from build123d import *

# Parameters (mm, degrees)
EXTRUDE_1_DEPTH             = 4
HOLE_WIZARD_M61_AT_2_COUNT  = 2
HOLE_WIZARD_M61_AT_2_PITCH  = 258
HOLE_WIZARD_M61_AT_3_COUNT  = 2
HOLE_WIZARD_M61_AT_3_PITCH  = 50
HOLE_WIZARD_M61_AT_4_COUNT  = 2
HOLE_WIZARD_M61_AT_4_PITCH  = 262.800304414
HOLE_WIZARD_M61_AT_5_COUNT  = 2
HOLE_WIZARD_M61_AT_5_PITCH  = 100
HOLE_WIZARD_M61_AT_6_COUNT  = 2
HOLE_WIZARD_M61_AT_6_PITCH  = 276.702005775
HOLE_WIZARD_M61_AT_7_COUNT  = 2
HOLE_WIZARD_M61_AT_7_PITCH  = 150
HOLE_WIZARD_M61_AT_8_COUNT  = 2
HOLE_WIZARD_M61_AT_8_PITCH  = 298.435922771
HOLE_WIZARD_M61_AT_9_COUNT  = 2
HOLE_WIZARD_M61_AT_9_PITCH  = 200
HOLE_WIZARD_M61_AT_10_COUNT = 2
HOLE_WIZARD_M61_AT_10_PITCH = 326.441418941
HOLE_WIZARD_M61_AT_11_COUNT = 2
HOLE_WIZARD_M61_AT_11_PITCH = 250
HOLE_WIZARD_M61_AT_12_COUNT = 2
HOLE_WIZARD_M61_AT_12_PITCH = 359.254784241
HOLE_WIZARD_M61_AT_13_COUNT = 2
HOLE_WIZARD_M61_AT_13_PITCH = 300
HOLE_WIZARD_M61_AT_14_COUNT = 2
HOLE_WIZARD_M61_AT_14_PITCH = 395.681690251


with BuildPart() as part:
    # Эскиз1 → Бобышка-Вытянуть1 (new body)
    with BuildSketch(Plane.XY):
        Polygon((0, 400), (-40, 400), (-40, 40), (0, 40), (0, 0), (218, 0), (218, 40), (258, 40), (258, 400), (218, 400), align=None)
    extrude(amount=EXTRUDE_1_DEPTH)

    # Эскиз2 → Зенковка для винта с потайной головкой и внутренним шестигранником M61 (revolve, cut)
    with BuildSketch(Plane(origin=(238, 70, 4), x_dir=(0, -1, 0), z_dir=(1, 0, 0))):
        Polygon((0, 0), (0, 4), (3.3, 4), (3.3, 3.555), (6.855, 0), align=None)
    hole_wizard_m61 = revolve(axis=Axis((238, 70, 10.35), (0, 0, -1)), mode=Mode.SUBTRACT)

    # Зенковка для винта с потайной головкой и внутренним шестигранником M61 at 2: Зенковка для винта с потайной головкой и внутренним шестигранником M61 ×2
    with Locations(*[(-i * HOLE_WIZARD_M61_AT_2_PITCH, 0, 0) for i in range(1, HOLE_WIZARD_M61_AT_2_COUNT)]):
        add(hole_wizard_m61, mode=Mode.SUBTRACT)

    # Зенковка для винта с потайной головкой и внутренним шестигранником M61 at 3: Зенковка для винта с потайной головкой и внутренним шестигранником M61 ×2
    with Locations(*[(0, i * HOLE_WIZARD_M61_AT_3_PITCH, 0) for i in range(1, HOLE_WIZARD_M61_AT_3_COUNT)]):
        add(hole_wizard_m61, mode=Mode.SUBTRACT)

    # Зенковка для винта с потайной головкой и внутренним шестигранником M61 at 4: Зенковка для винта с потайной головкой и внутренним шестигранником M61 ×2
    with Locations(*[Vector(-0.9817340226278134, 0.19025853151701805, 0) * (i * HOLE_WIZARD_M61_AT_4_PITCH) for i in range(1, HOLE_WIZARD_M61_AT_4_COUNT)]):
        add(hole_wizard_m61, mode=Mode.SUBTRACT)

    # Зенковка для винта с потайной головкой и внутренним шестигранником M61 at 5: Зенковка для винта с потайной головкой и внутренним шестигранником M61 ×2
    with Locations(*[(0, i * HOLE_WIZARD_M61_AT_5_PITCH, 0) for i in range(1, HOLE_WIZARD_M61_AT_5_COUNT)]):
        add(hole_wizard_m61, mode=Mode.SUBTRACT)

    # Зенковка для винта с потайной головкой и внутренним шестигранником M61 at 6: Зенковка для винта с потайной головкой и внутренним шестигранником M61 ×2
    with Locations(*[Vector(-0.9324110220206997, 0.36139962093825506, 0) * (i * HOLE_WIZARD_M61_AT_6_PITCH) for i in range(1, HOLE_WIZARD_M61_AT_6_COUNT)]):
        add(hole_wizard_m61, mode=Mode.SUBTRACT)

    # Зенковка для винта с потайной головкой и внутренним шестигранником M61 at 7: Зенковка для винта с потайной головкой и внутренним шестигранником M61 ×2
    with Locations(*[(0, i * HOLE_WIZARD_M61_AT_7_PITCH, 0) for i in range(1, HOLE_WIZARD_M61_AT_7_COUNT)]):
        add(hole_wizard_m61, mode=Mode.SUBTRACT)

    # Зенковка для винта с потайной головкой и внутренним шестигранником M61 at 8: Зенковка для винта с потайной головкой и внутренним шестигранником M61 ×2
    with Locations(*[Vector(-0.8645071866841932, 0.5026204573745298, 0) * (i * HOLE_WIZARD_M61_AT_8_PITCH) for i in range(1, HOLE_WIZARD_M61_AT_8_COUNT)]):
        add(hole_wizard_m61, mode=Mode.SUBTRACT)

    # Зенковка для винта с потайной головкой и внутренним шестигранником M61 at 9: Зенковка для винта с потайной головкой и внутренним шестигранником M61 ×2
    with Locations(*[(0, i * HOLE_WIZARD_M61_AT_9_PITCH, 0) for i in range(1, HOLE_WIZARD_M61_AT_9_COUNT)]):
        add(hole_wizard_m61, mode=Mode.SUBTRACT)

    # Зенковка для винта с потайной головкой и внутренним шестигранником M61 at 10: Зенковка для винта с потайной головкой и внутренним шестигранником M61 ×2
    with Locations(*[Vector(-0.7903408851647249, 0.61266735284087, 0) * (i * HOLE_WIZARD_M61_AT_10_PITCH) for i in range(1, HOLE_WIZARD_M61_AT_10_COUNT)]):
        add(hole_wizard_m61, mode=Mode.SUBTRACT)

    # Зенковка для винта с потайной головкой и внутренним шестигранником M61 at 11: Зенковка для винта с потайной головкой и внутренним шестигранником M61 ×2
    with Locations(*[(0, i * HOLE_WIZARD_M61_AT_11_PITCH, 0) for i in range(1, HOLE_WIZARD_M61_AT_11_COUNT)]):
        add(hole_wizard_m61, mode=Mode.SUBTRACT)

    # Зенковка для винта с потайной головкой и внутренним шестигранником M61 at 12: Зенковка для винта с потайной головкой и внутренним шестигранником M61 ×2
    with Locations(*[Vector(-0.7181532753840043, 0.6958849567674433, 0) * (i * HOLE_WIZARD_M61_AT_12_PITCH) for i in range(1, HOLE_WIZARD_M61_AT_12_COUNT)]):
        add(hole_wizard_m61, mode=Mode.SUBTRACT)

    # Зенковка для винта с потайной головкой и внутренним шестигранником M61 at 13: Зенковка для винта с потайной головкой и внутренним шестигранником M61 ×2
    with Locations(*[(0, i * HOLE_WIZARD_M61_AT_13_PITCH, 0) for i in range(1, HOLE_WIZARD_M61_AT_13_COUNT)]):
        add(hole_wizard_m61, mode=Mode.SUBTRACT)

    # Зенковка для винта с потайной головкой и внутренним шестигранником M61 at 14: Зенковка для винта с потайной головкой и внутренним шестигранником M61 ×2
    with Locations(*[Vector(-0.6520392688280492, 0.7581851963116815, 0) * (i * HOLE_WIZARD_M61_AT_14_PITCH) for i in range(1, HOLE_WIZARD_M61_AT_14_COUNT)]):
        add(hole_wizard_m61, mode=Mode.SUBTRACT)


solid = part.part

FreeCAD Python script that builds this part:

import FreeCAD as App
import Part
import Sketcher

V = App.Vector
Q = App.Units.Quantity

doc = App.newDocument("Part")
params = doc.addObject("Spreadsheet::Sheet", "Params")
for row, (alias, value) in enumerate([
    ("sketch1_width", "40 mm"),
    ("sketch1_width2", "218 mm"),
    ("sketch1_height", "360 mm"),
    ("pad1_length", "4 mm"),
    ("sketch2_height", "4 mm"),
    ("sketch2_width", "3.3 mm"),
    ("groove_angle", "360 deg"),
    ("linearpattern_pitch", "258 mm"),
    ("linearpattern2_pitch", "50 mm"),
    ("linearpattern3_pitch", "262.800304 mm"),
    ("linearpattern4_pitch", "100 mm"),
    ("linearpattern5_pitch", "276.702006 mm"),
    ("linearpattern6_pitch", "150 mm"),
    ("linearpattern7_pitch", "298.435923 mm"),
    ("linearpattern8_pitch", "200 mm"),
    ("linearpattern9_pitch", "326.441419 mm"),
    ("linearpattern10_pitch", "250 mm"),
    ("linearpattern11_pitch", "359.254784 mm"),
    ("linearpattern12_pitch", "300 mm"),
    ("linearpattern13_pitch", "395.68169 mm"),
], start=1):
    params.set(f"A{row}", alias)
    params.set(f"B{row}", "=" + value)
    params.setAlias(f"B{row}", alias)

body = doc.addObject("PartDesign::Body", "Body")

sketch1 = body.newObject("Sketcher::SketchObject", "Sketch")
sketch1.AttachmentSupport = (doc.getObject("XY_Plane"), [""])
sketch1.MapMode = "FlatFace"
sketch1.addGeometry(Part.LineSegment(V(-40, 400, 0), V(-40, 40, 0)), False)
sketch1.addGeometry(Part.LineSegment(V(-40, 40, 0), V(0, 40, 0)), False)
sketch1.addGeometry(Part.LineSegment(V(0, 40, 0), V(0, 0, 0)), False)
sketch1.addGeometry(Part.LineSegment(V(0, 0, 0), V(218, 0, 0)), False)
sketch1.addGeometry(Part.LineSegment(V(218, 0, 0), V(218, 40, 0)), False)
sketch1.addGeometry(Part.LineSegment(V(218, 40, 0), V(258, 40, 0)), False)
sketch1.addGeometry(Part.LineSegment(V(258, 40, 0), V(258, 400, 0)), False)
sketch1.addGeometry(Part.LineSegment(V(258, 400, 0), V(-40, 400, 0)), False)
sketch1.addConstraint(Sketcher.Constraint("Coincident", 0, 2, 1, 1))
sketch1.addConstraint(Sketcher.Constraint("Coincident", 1, 2, 2, 1))
sketch1.addConstraint(Sketcher.Constraint("Coincident", 2, 2, 3, 1))
sketch1.addConstraint(Sketcher.Constraint("Coincident", 3, 2, 4, 1))
sketch1.addConstraint(Sketcher.Constraint("Coincident", 4, 2, 5, 1))
sketch1.addConstraint(Sketcher.Constraint("Coincident", 5, 2, 6, 1))
sketch1.addConstraint(Sketcher.Constraint("Coincident", 6, 2, 7, 1))
sketch1.addConstraint(Sketcher.Constraint("Coincident", 7, 2, 0, 1))
sketch1.addConstraint(Sketcher.Constraint("Vertical", 0))
sketch1.addConstraint(Sketcher.Constraint("Horizontal", 1))
sketch1.addConstraint(Sketcher.Constraint("Vertical", 2))
sketch1.addConstraint(Sketcher.Constraint("Horizontal", 3))
sketch1.addConstraint(Sketcher.Constraint("Vertical", 4))
sketch1.addConstraint(Sketcher.Constraint("Horizontal", 5))
sketch1.addConstraint(Sketcher.Constraint("Vertical", 6))
sketch1.addConstraint(Sketcher.Constraint("Horizontal", 7))
sketch1.addConstraint(Sketcher.Constraint("Coincident", 2, 2, -1, 1))
sketch1.addConstraint(Sketcher.Constraint("Horizontal", 1, 2, 4, 2))
sketch1.addConstraint(Sketcher.Constraint("Equal", 1, 5))
sketch1.addConstraint(Sketcher.Constraint("Equal", 5, 2))
sketch1.addConstraint(Sketcher.Constraint("DistanceX", 1, 1, 1, 2, 40.0))
sketch1.addConstraint(Sketcher.Constraint("DistanceX", 3, 1, 3, 2, 218.0))
sketch1.addConstraint(Sketcher.Constraint("DistanceY", 0, 2, 0, 1, 360.0))
sketch1.setExpression("Constraints[20]", "Params.sketch1_width")
sketch1.setExpression("Constraints[21]", "Params.sketch1_width2")
sketch1.setExpression("Constraints[22]", "Params.sketch1_height")
pad1 = body.newObject("PartDesign::Pad", "Pad")
pad1.Profile = sketch1
pad1.setExpression("Length", "Params.pad1_length")

sketch2 = body.newObject("Sketcher::SketchObject", "Sketch001")
sketch2.AttachmentSupport = (doc.getObject("YZ_Plane"), [""])
sketch2.MapMode = "FlatFace"
sketch2.AttachmentOffset = App.Placement(V(0, 0, 238), App.Rotation())
sketch2.addGeometry(Part.LineSegment(V(70, 0, 0), V(70, 4, 0)), False)
sketch2.addGeometry(Part.LineSegment(V(70, 4, 0), V(63.145, 4, 0)), False)
sketch2.addGeometry(Part.LineSegment(V(63.145, 4, 0), V(66.7, 0.445, 0)), False)
sketch2.addGeometry(Part.LineSegment(V(66.7, 0.445, 0), V(66.7, 0, 0)), False)
sketch2.addGeometry(Part.LineSegment(V(66.7, 0, 0), V(70, 0, 0)), False)
sketch2.addGeometry(Part.LineSegment(V(70, 4, 0), V(70, 0, 0)), True)
sketch2.addConstraint(Sketcher.Constraint("Coincident", 0, 2, 1, 1))
sketch2.addConstraint(Sketcher.Constraint("Coincident", 1, 2, 2, 1))
sketch2.addConstraint(Sketcher.Constraint("Coincident", 2, 2, 3, 1))
sketch2.addConstraint(Sketcher.Constraint("Coincident", 3, 2, 4, 1))
sketch2.addConstraint(Sketcher.Constraint("Coincident", 4, 2, 0, 1))
sketch2.addConstraint(Sketcher.Constraint("Vertical", 0))
sketch2.addConstraint(Sketcher.Constraint("Horizontal", 1))
sketch2.addConstraint(Sketcher.Constraint("Vertical", 3))
sketch2.addConstraint(Sketcher.Constraint("Horizontal", 4))
sketch2.addConstraint(Sketcher.Constraint("Vertical", 5))
sketch2.addConstraint(Sketcher.Constraint("Coincident", 5, 1, 0, 2))
sketch2.addConstraint(Sketcher.Constraint("PointOnObject", 3, 2, -1))
sketch2.addConstraint(Sketcher.Constraint("PointOnObject", 5, 2, -1))
sketch2.addConstraint(Sketcher.Constraint("DistanceY", 0, 1, 0, 2, 4.0))
sketch2.addConstraint(Sketcher.Constraint("Angle", 2, Q("-45 deg")))
sketch2.addConstraint(Sketcher.Constraint("DistanceX", 4, 1, 4, 2, 3.3))
sketch2.addConstraint(Sketcher.Constraint("DistanceX", -1, 1, 0, 2, 70.0))
sketch2.addConstraint(Sketcher.Constraint("DistanceX", 1, 2, 1, 1, 6.855))
sketch2.setExpression("Constraints[13]", "Params.sketch2_height")
sketch2.setExpression("Constraints[15]", "Params.sketch2_width")
groove = body.newObject("PartDesign::Groove", "Groove")
groove.Profile = sketch2
groove.ReferenceAxis = (sketch2, ["Axis0"])
groove.setExpression("Angle", "Params.groove_angle")
doc.recompute()

linearpattern = body.newObject("PartDesign::LinearPattern", "LinearPattern")
linearpattern.Originals = [groove]
linearpattern.Direction = (doc.getObject("X_Axis"), [""])
linearpattern.Mode = "offset"
linearpattern.setExpression("Offset", "Params.linearpattern_pitch")
linearpattern.Occurrences = 2
linearpattern.Reversed = True
body.Tip = linearpattern
doc.recompute()

linearpattern2 = body.newObject("PartDesign::LinearPattern", "LinearPattern001")
linearpattern2.Originals = [groove]
linearpattern2.Direction = (doc.getObject("Y_Axis"), [""])
linearpattern2.Mode = "offset"
linearpattern2.setExpression("Offset", "Params.linearpattern2_pitch")
linearpattern2.Occurrences = 2
body.Tip = linearpattern2
doc.recompute()

datumline = body.newObject("PartDesign::Line", "DatumLine")
datumline.Placement = App.Placement(V(0, 0, 0), App.Rotation(V(0, 0, 1), V(-0.981734023, 0.190258532, 0)))
linearpattern3 = body.newObject("PartDesign::LinearPattern", "LinearPattern002")
linearpattern3.Originals = [groove]
linearpattern3.Direction = (datumline, [""])
linearpattern3.Mode = "offset"
linearpattern3.setExpression("Offset", "Params.linearpattern3_pitch")
linearpattern3.Occurrences = 2
body.Tip = linearpattern3
doc.recompute()

linearpattern4 = body.newObject("PartDesign::LinearPattern", "LinearPattern003")
linearpattern4.Originals = [groove]
linearpattern4.Direction = (doc.getObject("Y_Axis"), [""])
linearpattern4.Mode = "offset"
linearpattern4.setExpression("Offset", "Params.linearpattern4_pitch")
linearpattern4.Occurrences = 2
body.Tip = linearpattern4
doc.recompute()

datumline2 = body.newObject("PartDesign::Line", "DatumLine001")
datumline2.Placement = App.Placement(V(0, 0, 0), App.Rotation(V(0, 0, 1), V(-0.932411022, 0.361399621, 0)))
linearpattern5 = body.newObject("PartDesign::LinearPattern", "LinearPattern004")
linearpattern5.Originals = [groove]
linearpattern5.Direction = (datumline2, [""])
linearpattern5.Mode = "offset"
linearpattern5.setExpression("Offset", "Params.linearpattern5_pitch")
linearpattern5.Occurrences = 2
body.Tip = linearpattern5
doc.recompute()

linearpattern6 = body.newObject("PartDesign::LinearPattern", "LinearPattern005")
linearpattern6.Originals = [groove]
linearpattern6.Direction = (doc.getObject("Y_Axis"), [""])
linearpattern6.Mode = "offset"
linearpattern6.setExpression("Offset", "Params.linearpattern6_pitch")
linearpattern6.Occurrences = 2
body.Tip = linearpattern6
doc.recompute()

datumline3 = body.newObject("PartDesign::Line", "DatumLine002")
datumline3.Placement = App.Placement(V(0, 0, 0), App.Rotation(V(0, 0, 1), V(-0.864507187, 0.502620457, 0)))
linearpattern7 = body.newObject("PartDesign::LinearPattern", "LinearPattern006")
linearpattern7.Originals = [groove]
linearpattern7.Direction = (datumline3, [""])
linearpattern7.Mode = "offset"
linearpattern7.setExpression("Offset", "Params.linearpattern7_pitch")
linearpattern7.Occurrences = 2
body.Tip = linearpattern7
doc.recompute()

linearpattern8 = body.newObject("PartDesign::LinearPattern", "LinearPattern007")
linearpattern8.Originals = [groove]
linearpattern8.Direction = (doc.getObject("Y_Axis"), [""])
linearpattern8.Mode = "offset"
linearpattern8.setExpression("Offset", "Params.linearpattern8_pitch")
linearpattern8.Occurrences = 2
body.Tip = linearpattern8
doc.recompute()

datumline4 = body.newObject("PartDesign::Line", "DatumLine003")
datumline4.Placement = App.Placement(V(0, 0, 0), App.Rotation(V(0, 0, 1), V(-0.790340885, 0.612667353, 0)))
linearpattern9 = body.newObject("PartDesign::LinearPattern", "LinearPattern008")
linearpattern9.Originals = [groove]
linearpattern9.Direction = (datumline4, [""])
linearpattern9.Mode = "offset"
linearpattern9.setExpression("Offset", "Params.linearpattern9_pitch")
linearpattern9.Occurrences = 2
body.Tip = linearpattern9
doc.recompute()

linearpattern10 = body.newObject("PartDesign::LinearPattern", "LinearPattern009")
linearpattern10.Originals = [groove]
linearpattern10.Direction = (doc.getObject("Y_Axis"), [""])
linearpattern10.Mode = "offset"
linearpattern10.setExpression("Offset", "Params.linearpattern10_pitch")
linearpattern10.Occurrences = 2
body.Tip = linearpattern10
doc.recompute()

datumline5 = body.newObject("PartDesign::Line", "DatumLine004")
datumline5.Placement = App.Placement(V(0, 0, 0), App.Rotation(V(0, 0, 1), V(-0.718153275, 0.695884957, 0)))
linearpattern11 = body.newObject("PartDesign::LinearPattern", "LinearPattern010")
linearpattern11.Originals = [groove]
linearpattern11.Direction = (datumline5, [""])
linearpattern11.Mode = "offset"
linearpattern11.setExpression("Offset", "Params.linearpattern11_pitch")
linearpattern11.Occurrences = 2
body.Tip = linearpattern11
doc.recompute()

linearpattern12 = body.newObject("PartDesign::LinearPattern", "LinearPattern011")
linearpattern12.Originals = [groove]
linearpattern12.Direction = (doc.getObject("Y_Axis"), [""])
linearpattern12.Mode = "offset"
linearpattern12.setExpression("Offset", "Params.linearpattern12_pitch")
linearpattern12.Occurrences = 2
body.Tip = linearpattern12
doc.recompute()

datumline6 = body.newObject("PartDesign::Line", "DatumLine005")
datumline6.Placement = App.Placement(V(0, 0, 0), App.Rotation(V(0, 0, 1), V(-0.652039269, 0.758185196, 0)))
linearpattern13 = body.newObject("PartDesign::LinearPattern", "LinearPattern012")
linearpattern13.Originals = [groove]
linearpattern13.Direction = (datumline6, [""])
linearpattern13.Mode = "offset"
linearpattern13.setExpression("Offset", "Params.linearpattern13_pitch")
linearpattern13.Occurrences = 2
body.Tip = linearpattern13

doc.recompute()
